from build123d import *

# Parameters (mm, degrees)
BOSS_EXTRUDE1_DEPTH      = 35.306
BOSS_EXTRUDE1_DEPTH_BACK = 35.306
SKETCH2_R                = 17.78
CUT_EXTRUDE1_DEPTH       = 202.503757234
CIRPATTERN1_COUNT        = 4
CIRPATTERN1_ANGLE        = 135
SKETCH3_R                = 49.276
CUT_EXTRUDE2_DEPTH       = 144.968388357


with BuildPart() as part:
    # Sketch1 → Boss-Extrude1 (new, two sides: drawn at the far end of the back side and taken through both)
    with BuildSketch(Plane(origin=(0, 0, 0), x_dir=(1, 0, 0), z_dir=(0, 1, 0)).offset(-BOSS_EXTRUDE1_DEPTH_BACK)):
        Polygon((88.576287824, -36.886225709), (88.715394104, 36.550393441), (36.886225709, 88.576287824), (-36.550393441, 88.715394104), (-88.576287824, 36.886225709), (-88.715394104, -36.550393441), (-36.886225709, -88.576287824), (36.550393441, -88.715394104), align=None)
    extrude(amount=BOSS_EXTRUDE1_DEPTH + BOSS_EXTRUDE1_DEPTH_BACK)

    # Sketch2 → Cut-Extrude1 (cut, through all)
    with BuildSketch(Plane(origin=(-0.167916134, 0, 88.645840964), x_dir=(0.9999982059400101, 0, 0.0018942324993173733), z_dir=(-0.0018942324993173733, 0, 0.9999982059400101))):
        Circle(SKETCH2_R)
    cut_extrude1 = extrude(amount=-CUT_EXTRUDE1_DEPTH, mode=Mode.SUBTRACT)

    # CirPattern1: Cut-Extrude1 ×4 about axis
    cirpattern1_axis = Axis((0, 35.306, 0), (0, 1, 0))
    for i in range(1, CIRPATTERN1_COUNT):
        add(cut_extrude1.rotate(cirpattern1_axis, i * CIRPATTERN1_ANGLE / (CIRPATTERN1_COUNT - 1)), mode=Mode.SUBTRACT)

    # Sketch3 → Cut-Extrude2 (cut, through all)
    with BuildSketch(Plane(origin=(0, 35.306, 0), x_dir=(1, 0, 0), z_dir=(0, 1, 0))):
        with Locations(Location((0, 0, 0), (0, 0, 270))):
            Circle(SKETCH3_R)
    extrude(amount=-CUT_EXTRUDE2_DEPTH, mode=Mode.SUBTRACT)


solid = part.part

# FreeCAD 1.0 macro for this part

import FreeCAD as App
import Part
import Sketcher
from FreeCAD import Vector
Q = App.Units.Quantity


def add_polygon(sketch, points):
    """Adds a closed chain of lines whose ends are joined by coincident constraints."""
    first, n = sketch.GeometryCount, len(points)
    for a, b in zip(points, points[1:] + points[:1]):
        sketch.addGeometry(Part.LineSegment(App.Vector(*a, 0), App.Vector(*b, 0)), False)
    for i in range(n):
        sketch.addConstraint(Sketcher.Constraint("Coincident", first + i, 2, first + (i + 1) % n, 1))

doc = App.newDocument("Part")
body = doc.addObject("PartDesign::Body", "Body")

# Sketch on XZ plane
sketch1 = doc.addObject("Sketcher::SketchObject", "Sketch")
body.addObject(sketch1)
sketch1.AttachmentSupport = (doc.XZ_Plane, [""])
sketch1.MapMode = "FlatFace"
add_polygon(sketch1, [(88.576288, 36.886226), (88.715394, -36.550393), (36.886226, -88.576288), (-36.550393, -88.715394), (-88.576288, -36.886226), (-88.715394, 36.550393), (-36.886226, 88.576288), (36.550393, 88.715394)])  # lines 0-7
sketch1.addConstraint([
    Sketcher.Constraint("Symmetric", 0, 2, 4, 2, -1, 1),
    Sketcher.Constraint("Symmetric", 1, 2, 5, 2, -1, 1),
    Sketcher.Constraint("Symmetric", 2, 2, 6, 2, -1, 1),
    Sketcher.Constraint("Symmetric", 3, 2, 7, 2, -1, 1),
    Sketcher.Constraint("Perpendicular", 0, 2),
    Sketcher.Constraint("Perpendicular", 1, 3),
    Sketcher.Constraint("Equal", 0, 1),
    Sketcher.Constraint("Equal", 1, 2),
    Sketcher.Constraint("Equal", 2, 3),
    Sketcher.Constraint("DistanceY", 2, 2, 0, 2, Q("52.165001 mm")),
    Sketcher.Constraint("Distance", 0, Q("73.436751 mm")),
    Sketcher.Constraint("DistanceX", 1, 2, 0, 2, Q("51.829168 mm")),
])
pad1 = doc.addObject("PartDesign::Pad", "Pad")
body.addObject(pad1)
pad1.Profile = sketch1
pad1.Type = "TwoLengths"
pad1.Length = Q("1.39 in")
pad1.Length2 = Q("1.39 in")
pad1.Reversed = True

# Sketch on an angled plane
sketch2 = doc.addObject("Sketcher::SketchObject", "Sketch001")
body.addObject(sketch2)
sketch2.Placement = App.Placement(Vector(-0.167916, 0, 88.645841), App.Rotation(Vector(0.999998206, 0, 0.001894232), Vector(0, 1, 0), Vector(-0.001894232, 0, 0.999998206), "ZXY"))
sketch2.addGeometry(Part.Circle(Vector(0, 0, 0), Vector(0, 0, 1), 17.78), False)
sketch2.addConstraint([
    Sketcher.Constraint("Coincident", 0, 3, -1, 1),
    Sketcher.Constraint("Diameter", 0, Q("1.4 in")),
])
pocket1 = doc.addObject("PartDesign::Pocket", "Pocket")
body.addObject(pocket1)
pocket1.Profile = sketch2
pocket1.Type = "ThroughAll"
doc.recompute()

polarpattern = doc.addObject("PartDesign::PolarPattern", "PolarPattern")
body.addObject(polarpattern)
polarpattern.Originals = [pocket1]
polarpattern.Axis = (doc.Y_Axis, [""])
polarpattern.Angle = 135
polarpattern.Occurrences = 4
body.Tip = polarpattern

# Sketch on XZ plane
sketch3 = doc.addObject("Sketcher::SketchObject", "Sketch002")
body.addObject(sketch3)
sketch3.AttachmentSupport = (doc.XZ_Plane, [""])
sketch3.MapMode = "FlatFace"
sketch3.AttachmentOffset = App.Placement(Vector(0, 0, -1.39 * 25.4), App.Rotation())
sketch3.addGeometry(Part.Circle(Vector(0, 0, 0), Vector(0, 0, 1), 49.276), False)
sketch3.addConstraint([
    Sketcher.Constraint("Coincident", 0, 3, -1, 1),
    Sketcher.Constraint("Diameter", 0, Q("3.88 in")),
])
pocket2 = doc.addObject("PartDesign::Pocket", "Pocket001")
body.addObject(pocket2)
pocket2.Profile = sketch3
pocket2.Type = "ThroughAll"
pocket2.Reversed = True

doc.recompute()
